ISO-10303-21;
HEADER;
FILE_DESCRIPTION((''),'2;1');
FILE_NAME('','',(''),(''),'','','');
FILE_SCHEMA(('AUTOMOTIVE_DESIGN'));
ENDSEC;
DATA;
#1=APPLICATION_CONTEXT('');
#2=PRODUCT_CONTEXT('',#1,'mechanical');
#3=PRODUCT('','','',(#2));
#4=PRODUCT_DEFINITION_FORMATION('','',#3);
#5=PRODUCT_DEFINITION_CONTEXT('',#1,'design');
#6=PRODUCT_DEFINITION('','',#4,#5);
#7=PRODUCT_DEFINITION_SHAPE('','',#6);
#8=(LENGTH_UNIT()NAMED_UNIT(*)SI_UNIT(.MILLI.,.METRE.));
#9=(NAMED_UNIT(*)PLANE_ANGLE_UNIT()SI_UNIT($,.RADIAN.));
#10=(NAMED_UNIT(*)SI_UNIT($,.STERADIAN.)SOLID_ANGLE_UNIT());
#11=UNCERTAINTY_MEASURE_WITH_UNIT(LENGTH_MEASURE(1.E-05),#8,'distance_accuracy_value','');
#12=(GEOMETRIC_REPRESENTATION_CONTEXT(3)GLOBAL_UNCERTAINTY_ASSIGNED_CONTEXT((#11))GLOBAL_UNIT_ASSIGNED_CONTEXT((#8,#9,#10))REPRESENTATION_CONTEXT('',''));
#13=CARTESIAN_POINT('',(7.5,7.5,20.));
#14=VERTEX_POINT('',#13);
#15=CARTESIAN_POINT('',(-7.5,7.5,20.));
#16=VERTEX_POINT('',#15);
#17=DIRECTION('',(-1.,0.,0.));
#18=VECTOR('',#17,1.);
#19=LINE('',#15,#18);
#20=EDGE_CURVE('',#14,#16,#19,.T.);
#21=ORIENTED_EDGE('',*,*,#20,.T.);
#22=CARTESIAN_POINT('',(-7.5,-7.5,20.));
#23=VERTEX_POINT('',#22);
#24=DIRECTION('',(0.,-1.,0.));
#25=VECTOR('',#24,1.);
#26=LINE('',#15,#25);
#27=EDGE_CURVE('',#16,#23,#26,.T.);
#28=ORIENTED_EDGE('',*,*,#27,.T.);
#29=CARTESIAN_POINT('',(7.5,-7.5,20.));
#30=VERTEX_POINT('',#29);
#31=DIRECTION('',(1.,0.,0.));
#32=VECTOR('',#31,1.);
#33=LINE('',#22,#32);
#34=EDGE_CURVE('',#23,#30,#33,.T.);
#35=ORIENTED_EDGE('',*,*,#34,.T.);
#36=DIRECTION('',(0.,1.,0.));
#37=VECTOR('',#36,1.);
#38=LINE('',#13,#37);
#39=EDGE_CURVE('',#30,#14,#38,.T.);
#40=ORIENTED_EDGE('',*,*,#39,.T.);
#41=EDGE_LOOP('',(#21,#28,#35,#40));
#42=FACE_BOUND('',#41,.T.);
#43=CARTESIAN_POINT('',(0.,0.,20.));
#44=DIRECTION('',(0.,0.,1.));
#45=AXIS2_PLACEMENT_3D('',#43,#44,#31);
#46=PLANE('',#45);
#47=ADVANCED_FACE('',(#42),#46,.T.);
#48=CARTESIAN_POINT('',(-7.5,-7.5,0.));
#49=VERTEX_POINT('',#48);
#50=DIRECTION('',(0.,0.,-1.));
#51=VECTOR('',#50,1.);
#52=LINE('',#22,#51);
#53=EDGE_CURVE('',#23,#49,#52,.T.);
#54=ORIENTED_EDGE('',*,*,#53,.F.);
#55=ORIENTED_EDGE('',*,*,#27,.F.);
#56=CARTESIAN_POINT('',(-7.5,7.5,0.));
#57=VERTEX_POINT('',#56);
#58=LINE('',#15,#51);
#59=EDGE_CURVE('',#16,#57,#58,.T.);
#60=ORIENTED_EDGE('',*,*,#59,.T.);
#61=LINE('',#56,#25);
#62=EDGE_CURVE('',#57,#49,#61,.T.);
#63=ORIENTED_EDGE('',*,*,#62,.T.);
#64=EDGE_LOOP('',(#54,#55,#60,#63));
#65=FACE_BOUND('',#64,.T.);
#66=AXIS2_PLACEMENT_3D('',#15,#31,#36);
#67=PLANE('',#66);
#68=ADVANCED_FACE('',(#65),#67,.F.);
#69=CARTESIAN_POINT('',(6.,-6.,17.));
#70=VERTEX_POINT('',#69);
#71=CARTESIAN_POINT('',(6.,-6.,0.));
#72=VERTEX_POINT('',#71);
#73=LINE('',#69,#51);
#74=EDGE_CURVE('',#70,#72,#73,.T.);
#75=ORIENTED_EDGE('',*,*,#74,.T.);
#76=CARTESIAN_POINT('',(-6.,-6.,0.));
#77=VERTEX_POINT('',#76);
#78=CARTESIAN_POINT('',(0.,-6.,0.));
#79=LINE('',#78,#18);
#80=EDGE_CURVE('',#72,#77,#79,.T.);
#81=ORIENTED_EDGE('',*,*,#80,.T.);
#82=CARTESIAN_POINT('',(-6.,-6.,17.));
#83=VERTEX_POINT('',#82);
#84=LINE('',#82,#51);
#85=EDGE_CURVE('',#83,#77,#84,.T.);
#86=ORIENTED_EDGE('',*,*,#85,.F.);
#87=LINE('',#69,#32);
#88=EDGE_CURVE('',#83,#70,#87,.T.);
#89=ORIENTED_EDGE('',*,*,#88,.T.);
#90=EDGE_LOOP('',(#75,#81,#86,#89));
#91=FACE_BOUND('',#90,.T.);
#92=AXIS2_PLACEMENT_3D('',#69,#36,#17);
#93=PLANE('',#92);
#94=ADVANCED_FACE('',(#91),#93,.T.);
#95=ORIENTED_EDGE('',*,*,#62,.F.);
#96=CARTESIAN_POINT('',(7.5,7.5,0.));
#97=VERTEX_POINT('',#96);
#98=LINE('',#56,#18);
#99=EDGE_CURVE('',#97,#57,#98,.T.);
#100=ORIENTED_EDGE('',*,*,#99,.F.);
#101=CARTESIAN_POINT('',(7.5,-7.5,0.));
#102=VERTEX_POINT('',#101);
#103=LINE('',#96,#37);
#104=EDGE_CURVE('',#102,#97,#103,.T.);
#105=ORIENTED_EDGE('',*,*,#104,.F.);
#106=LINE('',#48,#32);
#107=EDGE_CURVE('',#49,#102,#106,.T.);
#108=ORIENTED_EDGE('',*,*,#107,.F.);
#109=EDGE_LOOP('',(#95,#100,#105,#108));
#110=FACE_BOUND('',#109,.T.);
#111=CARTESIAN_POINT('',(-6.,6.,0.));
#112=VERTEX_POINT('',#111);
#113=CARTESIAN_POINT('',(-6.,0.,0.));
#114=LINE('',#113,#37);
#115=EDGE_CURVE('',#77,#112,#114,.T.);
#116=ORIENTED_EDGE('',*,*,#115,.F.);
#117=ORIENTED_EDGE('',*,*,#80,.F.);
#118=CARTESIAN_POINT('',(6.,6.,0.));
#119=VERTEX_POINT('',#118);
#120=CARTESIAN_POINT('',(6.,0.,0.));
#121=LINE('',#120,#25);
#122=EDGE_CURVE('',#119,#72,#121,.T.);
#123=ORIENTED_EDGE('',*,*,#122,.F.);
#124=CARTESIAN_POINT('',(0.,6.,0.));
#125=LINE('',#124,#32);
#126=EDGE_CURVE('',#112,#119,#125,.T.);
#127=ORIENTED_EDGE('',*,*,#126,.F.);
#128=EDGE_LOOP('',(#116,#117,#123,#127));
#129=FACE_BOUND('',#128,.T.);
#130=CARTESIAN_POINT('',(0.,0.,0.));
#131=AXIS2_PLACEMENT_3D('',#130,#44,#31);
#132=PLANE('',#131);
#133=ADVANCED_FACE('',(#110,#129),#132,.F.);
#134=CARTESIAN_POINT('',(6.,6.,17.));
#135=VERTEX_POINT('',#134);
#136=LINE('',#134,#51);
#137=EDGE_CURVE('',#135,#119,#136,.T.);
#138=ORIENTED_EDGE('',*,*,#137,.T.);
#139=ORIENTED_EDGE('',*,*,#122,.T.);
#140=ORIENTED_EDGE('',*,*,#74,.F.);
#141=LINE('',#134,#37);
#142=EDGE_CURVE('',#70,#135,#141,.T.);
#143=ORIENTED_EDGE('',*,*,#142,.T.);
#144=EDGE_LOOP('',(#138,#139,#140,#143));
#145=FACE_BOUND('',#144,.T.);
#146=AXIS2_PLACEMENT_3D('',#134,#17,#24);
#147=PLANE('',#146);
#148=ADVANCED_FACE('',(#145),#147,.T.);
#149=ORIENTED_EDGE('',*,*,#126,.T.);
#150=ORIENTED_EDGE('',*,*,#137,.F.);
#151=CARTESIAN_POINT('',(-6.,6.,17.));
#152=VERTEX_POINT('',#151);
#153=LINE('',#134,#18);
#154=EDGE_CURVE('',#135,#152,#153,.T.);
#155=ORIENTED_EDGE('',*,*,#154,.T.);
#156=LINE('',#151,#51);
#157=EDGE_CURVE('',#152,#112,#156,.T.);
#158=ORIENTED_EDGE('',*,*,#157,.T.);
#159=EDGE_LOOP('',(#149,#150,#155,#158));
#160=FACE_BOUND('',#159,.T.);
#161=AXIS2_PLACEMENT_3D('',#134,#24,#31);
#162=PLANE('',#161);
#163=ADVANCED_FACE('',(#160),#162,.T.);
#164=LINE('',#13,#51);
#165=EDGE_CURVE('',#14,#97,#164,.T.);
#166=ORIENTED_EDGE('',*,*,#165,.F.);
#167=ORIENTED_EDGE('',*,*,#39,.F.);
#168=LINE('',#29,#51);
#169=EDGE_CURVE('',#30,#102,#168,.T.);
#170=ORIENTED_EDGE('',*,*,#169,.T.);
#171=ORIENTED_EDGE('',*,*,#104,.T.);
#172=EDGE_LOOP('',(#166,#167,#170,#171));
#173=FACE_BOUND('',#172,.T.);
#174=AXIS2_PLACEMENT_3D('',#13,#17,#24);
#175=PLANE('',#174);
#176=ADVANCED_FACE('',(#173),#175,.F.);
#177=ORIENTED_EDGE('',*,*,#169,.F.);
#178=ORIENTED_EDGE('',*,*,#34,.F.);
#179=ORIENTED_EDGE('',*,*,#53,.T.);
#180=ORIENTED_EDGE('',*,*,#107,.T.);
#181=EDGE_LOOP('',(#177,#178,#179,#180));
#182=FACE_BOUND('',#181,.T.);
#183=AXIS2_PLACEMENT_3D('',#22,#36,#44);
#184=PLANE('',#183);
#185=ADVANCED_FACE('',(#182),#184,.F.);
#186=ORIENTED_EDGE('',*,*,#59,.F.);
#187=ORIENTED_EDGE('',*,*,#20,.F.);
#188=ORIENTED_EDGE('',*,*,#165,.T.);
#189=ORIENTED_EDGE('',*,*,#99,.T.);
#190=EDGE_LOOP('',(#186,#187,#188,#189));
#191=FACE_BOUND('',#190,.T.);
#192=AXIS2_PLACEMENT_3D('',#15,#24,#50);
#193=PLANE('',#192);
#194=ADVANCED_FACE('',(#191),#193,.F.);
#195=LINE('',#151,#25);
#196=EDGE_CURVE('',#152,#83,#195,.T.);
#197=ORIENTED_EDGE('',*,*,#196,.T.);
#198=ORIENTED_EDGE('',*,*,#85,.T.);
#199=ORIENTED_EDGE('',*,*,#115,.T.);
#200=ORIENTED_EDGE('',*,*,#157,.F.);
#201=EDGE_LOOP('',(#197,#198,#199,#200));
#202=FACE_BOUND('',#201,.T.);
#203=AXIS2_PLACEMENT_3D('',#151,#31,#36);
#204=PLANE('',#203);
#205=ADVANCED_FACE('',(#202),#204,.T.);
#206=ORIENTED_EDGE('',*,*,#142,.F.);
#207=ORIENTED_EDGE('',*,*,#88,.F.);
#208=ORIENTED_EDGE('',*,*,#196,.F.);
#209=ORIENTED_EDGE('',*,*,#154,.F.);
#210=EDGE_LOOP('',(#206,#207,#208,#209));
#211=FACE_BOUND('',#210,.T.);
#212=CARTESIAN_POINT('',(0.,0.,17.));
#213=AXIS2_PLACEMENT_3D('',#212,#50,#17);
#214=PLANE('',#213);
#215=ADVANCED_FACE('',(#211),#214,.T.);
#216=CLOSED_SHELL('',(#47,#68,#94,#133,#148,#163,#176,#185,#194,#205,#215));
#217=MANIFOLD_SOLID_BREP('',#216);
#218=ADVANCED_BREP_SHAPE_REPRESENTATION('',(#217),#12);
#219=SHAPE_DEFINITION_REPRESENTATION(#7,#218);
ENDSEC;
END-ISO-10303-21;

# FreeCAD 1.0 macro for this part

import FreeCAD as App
import Part
import Sketcher


def add_polygon(sketch, points):
    """Adds a closed chain of lines whose ends are joined by coincident constraints."""
    first, n = sketch.GeometryCount, len(points)
    for a, b in zip(points, points[1:] + points[:1]):
        sketch.addGeometry(Part.LineSegment(App.Vector(*a, 0), App.Vector(*b, 0)), False)
    for i in range(n):
        sketch.addConstraint(Sketcher.Constraint("Coincident", first + i, 2, first + (i + 1) % n, 1))

doc = App.newDocument("Part")
body = doc.addObject("PartDesign::Body", "Body")

sketch1 = body.newObject("Sketcher::SketchObject", "Sketch")
sketch1.AttachmentSupport = (doc.getObject("XY_Plane"), [""])
sketch1.MapMode = "FlatFace"
add_polygon(sketch1, [(-7.5, 7.5), (-7.5, -7.5), (7.5, -7.5), (7.5, 7.5)])
sketch1.addConstraint([
    Sketcher.Constraint("Vertical", 0),
    Sketcher.Constraint("Horizontal", 1),
    Sketcher.Constraint("Vertical", 2),
    Sketcher.Constraint("Horizontal", 3),
    Sketcher.Constraint("Symmetric", 0, 2, 2, 2, -1, 1),
    Sketcher.Constraint("Equal", 3, 0),
    Sketcher.Constraint("DistanceX", 1, 1, 1, 2, 15.0),
])
pad1 = body.newObject("PartDesign::Pad", "Pad")
pad1.Profile = sketch1
pad1.Length = 20

sketch2 = body.newObject("Sketcher::SketchObject", "Sketch001")
sketch2.AttachmentSupport = (doc.getObject("XY_Plane"), [""])
sketch2.MapMode = "FlatFace"
add_polygon(sketch2, [(-6, 6), (-6, -6), (6, -6), (6, 6)])
sketch2.addConstraint([
    Sketcher.Constraint("Vertical", 0),
    Sketcher.Constraint("Horizontal", 1),
    Sketcher.Constraint("Vertical", 2),
    Sketcher.Constraint("Horizontal", 3),
    Sketcher.Constraint("Symmetric", 0, 2, 2, 2, -1, 1),
    Sketcher.Constraint("Equal", 3, 0),
    Sketcher.Constraint("DistanceX", 1, 1, 1, 2, 12.0),
])
pocket1 = body.newObject("PartDesign::Pocket", "Pocket")
pocket1.Profile = sketch2
pocket1.Type = "TwoLengths"
pocket1.Length = 17
pocket1.Length2 = 0.001
pocket1.Reversed = True

doc.recompute()
